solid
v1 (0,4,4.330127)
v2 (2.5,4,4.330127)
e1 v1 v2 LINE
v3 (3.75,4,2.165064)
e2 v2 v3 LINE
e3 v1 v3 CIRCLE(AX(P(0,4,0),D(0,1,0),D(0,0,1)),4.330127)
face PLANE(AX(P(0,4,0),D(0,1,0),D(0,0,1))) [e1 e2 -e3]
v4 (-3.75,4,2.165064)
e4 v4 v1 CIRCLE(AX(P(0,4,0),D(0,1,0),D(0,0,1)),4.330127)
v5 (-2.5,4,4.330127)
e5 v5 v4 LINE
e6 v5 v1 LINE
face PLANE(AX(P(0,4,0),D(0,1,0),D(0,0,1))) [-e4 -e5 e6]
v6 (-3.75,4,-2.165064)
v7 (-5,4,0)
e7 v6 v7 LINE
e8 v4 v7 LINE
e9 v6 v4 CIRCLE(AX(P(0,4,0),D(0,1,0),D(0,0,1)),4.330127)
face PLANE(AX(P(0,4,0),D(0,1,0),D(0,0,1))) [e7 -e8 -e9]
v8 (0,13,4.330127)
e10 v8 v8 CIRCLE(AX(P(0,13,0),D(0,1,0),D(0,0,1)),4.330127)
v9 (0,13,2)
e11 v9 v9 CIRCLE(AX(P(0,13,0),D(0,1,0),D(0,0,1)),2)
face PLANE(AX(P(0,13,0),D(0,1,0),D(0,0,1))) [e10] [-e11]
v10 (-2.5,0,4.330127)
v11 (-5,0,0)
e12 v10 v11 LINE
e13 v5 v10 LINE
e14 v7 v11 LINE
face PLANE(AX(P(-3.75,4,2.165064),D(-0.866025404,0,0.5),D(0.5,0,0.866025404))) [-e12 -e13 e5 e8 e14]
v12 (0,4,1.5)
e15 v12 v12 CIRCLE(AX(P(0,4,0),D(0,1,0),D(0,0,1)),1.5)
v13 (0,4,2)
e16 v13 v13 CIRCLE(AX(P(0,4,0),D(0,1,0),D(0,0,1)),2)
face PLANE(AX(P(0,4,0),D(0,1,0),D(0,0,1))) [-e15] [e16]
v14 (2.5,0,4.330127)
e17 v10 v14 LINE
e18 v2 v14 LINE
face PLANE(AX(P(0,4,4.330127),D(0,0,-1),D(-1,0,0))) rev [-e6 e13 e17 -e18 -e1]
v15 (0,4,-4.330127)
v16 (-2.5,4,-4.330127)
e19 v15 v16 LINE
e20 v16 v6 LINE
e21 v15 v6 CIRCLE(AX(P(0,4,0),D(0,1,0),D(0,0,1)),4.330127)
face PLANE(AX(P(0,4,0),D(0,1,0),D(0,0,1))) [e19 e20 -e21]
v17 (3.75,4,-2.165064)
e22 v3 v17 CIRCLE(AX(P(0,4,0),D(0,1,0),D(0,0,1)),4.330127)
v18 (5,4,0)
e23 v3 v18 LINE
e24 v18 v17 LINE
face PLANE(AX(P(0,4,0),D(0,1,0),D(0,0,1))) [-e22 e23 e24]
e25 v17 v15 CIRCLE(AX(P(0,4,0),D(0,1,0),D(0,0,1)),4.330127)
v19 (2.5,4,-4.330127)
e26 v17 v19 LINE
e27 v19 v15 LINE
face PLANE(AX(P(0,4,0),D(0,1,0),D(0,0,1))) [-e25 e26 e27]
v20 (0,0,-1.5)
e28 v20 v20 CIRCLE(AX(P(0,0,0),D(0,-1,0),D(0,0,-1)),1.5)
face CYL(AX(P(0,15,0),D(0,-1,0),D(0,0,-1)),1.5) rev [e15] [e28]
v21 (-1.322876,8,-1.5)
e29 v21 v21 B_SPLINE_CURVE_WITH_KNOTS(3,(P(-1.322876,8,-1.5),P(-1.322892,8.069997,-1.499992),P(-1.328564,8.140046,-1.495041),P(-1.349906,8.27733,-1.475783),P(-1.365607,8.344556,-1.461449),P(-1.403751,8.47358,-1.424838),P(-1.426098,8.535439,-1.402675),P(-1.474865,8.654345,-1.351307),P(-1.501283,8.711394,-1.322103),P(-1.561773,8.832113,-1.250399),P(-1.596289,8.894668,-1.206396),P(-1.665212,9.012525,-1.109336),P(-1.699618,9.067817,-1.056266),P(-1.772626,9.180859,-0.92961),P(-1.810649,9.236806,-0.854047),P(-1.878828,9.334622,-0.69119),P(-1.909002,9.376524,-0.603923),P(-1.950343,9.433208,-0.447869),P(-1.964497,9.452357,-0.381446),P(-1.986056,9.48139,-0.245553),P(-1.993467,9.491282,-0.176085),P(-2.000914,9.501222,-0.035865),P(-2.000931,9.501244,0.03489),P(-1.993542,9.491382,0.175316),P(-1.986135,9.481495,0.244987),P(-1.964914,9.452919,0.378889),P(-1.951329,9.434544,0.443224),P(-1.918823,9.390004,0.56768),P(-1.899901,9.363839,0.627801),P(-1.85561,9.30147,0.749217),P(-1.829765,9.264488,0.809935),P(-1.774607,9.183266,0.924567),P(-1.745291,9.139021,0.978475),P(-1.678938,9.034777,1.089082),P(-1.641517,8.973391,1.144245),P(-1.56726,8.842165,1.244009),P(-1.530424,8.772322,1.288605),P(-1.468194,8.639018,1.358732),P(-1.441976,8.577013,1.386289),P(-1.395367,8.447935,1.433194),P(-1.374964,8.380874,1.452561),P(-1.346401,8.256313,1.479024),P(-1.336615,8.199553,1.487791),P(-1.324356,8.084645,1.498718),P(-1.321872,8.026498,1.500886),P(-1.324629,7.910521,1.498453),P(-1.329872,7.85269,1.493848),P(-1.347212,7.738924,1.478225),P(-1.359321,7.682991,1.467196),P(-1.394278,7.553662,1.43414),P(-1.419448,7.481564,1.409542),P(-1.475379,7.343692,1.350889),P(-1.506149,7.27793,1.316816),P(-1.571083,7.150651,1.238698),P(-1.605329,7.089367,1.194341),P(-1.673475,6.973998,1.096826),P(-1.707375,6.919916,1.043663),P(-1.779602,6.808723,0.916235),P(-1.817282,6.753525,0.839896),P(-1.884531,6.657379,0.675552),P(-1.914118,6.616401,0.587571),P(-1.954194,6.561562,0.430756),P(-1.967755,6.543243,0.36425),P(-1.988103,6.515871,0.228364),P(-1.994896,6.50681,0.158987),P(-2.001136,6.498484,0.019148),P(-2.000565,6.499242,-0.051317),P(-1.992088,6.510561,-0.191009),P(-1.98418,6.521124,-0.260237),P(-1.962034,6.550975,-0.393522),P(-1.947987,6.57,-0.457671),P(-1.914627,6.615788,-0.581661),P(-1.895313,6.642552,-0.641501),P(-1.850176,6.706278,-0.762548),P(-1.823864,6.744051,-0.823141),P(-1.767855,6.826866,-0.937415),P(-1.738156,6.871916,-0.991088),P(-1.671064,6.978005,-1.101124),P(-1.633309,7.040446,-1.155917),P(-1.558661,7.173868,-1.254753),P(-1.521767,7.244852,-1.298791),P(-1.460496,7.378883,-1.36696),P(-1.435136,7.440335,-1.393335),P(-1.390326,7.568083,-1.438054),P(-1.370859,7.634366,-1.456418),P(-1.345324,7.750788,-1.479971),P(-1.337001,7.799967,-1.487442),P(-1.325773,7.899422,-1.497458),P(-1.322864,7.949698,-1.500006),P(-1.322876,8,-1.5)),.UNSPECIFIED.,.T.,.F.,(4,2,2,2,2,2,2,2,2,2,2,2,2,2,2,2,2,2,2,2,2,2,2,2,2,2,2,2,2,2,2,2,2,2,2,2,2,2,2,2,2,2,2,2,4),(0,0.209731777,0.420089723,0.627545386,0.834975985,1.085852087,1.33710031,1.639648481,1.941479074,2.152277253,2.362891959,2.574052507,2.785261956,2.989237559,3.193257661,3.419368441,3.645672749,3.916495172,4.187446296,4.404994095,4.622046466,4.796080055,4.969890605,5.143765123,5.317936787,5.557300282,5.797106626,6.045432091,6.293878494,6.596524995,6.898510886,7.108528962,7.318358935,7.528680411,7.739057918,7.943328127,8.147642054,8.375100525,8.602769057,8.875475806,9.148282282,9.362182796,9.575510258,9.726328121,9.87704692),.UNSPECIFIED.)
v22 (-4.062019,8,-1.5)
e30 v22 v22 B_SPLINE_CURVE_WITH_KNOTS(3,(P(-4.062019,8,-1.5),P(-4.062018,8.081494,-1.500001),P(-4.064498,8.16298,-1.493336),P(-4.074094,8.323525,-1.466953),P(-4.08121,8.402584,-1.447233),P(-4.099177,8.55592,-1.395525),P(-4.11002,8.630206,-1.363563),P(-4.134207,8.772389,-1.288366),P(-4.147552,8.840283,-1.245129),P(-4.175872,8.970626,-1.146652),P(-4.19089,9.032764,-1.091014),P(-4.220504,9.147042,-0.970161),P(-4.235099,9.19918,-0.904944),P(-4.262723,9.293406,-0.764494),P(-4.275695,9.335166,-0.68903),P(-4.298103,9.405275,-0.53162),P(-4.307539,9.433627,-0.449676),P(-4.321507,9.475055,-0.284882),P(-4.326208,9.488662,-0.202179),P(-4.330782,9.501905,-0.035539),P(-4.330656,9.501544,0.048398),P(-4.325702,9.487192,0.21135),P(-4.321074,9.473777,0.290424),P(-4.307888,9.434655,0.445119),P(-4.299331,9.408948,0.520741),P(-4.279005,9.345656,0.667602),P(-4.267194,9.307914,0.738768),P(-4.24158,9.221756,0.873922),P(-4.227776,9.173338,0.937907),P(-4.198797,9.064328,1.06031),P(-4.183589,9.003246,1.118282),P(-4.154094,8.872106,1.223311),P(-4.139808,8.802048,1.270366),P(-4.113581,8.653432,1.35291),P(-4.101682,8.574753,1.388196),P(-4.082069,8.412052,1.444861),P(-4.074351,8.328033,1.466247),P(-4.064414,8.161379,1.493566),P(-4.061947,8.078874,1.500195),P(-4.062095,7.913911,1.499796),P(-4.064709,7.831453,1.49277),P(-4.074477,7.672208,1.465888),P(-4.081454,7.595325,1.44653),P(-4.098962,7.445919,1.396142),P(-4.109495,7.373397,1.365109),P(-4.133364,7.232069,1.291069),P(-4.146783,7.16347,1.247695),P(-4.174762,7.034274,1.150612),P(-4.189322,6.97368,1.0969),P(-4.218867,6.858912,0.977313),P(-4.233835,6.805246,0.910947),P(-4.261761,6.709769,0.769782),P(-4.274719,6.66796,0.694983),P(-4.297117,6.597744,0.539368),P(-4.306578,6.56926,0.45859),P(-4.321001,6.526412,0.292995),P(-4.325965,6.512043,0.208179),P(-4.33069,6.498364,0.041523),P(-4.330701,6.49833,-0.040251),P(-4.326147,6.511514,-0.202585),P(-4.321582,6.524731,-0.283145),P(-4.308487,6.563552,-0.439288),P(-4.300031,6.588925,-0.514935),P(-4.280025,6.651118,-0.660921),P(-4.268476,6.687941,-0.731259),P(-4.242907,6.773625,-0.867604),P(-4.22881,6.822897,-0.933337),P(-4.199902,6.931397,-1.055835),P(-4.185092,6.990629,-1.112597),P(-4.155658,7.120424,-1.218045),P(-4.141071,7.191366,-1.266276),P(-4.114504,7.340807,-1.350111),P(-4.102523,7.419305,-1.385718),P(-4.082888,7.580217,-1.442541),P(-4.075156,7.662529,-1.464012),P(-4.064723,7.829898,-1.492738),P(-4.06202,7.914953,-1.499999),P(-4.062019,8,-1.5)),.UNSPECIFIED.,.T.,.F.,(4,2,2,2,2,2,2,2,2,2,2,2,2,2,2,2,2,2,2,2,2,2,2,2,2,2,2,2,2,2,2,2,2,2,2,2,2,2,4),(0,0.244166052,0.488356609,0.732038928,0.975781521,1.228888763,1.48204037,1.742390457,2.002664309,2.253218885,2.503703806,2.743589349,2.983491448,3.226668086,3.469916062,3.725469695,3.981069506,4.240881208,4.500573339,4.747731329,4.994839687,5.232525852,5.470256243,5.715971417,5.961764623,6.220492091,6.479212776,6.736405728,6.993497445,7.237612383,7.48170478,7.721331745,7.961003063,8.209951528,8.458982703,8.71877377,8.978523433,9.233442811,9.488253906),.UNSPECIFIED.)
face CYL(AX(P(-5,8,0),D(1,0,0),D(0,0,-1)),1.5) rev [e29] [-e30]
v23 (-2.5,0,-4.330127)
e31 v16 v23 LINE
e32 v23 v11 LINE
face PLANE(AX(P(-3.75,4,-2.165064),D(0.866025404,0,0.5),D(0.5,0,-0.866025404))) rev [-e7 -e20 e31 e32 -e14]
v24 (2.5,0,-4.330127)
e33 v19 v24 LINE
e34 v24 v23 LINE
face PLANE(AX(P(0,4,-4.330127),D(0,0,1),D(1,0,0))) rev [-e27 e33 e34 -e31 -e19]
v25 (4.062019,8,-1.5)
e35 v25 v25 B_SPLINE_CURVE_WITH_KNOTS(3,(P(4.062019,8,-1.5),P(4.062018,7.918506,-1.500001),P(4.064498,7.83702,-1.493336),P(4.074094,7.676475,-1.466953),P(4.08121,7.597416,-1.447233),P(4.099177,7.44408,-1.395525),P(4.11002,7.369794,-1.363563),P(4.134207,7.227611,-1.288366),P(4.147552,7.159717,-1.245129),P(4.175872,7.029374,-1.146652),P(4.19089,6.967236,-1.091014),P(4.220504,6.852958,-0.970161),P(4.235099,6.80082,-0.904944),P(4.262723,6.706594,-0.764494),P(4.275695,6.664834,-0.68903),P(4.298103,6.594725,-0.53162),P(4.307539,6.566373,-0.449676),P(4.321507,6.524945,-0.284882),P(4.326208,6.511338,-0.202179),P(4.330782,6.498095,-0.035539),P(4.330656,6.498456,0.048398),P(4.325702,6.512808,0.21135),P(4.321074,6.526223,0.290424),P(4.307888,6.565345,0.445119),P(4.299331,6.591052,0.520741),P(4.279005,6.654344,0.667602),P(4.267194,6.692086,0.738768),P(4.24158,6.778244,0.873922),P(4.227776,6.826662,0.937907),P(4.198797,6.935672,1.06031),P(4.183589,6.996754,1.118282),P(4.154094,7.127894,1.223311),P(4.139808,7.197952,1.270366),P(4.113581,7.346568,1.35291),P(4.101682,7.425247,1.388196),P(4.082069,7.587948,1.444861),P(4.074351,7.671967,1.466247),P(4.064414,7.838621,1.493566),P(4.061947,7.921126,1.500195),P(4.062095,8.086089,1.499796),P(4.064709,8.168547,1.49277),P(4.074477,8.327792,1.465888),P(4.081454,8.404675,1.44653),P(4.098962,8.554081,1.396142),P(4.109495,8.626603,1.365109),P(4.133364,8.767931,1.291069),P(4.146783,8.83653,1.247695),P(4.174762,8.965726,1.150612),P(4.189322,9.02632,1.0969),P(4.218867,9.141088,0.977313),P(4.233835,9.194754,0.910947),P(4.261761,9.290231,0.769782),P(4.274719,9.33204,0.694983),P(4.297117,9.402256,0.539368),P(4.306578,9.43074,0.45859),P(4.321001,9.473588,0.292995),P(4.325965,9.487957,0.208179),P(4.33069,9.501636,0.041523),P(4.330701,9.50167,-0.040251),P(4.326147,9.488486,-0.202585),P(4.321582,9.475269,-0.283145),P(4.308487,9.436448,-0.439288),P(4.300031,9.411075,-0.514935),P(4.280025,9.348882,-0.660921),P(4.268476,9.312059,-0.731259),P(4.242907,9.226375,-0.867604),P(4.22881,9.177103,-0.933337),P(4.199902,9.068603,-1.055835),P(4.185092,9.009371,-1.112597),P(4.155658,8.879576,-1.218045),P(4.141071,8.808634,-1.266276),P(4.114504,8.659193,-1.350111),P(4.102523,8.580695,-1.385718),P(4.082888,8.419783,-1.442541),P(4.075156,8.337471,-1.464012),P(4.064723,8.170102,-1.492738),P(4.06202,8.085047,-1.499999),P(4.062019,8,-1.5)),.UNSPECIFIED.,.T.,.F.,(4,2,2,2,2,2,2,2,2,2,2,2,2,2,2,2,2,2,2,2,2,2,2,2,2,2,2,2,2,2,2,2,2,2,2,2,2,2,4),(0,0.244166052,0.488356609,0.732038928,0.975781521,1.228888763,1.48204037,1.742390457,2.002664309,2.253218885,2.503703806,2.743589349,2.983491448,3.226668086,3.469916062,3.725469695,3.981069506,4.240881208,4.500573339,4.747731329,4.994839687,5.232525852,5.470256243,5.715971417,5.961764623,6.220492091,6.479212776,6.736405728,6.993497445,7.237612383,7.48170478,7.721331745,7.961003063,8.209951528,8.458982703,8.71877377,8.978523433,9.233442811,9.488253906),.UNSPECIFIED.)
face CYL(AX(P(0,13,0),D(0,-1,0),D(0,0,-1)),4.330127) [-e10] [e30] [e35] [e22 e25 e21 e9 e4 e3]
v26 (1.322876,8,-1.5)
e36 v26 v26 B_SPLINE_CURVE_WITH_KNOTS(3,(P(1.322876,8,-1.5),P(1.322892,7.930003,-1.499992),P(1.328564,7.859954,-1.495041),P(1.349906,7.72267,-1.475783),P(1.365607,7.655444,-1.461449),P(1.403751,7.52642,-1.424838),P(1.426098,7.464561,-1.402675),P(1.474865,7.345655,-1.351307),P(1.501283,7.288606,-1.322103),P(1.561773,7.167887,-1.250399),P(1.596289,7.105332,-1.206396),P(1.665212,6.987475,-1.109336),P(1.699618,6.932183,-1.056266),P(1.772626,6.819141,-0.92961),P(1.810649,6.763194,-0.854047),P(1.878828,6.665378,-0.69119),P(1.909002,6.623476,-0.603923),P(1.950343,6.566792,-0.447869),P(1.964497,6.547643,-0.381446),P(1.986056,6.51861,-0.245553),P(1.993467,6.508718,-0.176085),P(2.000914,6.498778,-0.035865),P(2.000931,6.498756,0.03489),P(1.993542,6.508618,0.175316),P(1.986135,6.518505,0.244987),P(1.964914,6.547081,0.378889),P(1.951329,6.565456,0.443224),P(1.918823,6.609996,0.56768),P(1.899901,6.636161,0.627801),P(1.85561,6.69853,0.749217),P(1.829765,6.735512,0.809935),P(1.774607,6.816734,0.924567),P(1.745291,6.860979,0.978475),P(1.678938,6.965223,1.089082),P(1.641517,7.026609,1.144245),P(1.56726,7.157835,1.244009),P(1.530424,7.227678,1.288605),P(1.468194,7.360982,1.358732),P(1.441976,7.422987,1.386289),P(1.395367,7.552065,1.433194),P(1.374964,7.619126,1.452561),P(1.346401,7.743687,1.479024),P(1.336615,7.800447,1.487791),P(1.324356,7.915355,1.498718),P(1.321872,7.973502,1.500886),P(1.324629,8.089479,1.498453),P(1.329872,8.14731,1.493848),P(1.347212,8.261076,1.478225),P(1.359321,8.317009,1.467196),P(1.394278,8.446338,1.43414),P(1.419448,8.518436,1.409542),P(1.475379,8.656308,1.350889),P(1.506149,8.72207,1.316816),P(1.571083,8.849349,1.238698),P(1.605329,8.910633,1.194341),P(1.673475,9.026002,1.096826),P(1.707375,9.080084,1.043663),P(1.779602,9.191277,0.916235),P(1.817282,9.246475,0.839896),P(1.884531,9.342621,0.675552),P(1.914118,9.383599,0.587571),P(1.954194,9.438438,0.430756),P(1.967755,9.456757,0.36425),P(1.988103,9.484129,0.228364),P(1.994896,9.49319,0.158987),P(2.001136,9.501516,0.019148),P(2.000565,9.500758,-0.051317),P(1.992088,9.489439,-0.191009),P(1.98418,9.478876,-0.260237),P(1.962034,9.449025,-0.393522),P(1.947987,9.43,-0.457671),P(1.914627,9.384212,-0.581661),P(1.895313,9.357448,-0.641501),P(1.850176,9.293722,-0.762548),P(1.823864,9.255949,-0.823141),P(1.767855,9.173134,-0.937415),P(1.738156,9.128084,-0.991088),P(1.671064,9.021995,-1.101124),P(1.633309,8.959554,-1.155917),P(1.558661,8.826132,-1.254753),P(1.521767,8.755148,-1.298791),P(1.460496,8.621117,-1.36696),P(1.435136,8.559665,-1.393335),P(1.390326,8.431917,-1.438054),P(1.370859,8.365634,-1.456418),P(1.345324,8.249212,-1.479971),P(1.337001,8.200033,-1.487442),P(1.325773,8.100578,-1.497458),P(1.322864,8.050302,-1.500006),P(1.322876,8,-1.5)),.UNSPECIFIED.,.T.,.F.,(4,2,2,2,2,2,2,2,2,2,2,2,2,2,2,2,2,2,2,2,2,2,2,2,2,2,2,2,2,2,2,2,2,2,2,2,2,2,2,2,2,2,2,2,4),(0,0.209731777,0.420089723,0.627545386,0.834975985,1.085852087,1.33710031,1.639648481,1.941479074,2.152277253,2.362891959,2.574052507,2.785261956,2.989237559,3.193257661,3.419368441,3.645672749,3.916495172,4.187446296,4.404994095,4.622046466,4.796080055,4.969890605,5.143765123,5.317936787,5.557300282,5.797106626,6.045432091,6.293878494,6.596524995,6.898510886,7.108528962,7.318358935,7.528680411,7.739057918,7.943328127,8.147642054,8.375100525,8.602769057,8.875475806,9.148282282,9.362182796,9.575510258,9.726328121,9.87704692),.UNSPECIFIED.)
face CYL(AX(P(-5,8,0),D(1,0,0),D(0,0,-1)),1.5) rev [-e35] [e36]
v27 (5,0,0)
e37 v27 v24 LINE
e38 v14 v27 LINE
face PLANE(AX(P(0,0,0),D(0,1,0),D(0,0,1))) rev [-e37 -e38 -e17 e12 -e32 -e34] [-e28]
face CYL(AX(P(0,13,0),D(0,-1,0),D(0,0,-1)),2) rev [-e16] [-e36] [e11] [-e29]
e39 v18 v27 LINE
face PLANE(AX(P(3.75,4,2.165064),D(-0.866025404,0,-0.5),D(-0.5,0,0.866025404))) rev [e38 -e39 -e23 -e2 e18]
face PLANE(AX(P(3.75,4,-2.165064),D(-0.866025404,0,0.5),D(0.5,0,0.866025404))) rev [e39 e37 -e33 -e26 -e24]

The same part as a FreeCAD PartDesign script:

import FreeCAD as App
import Part
import Sketcher
Q = App.Units.Quantity

doc = App.newDocument("Part")
body = doc.addObject("PartDesign::Body", "Body")

# Sketch on XZ plane
sketch1 = doc.addObject("Sketcher::SketchObject", "Sketch")
body.addObject(sketch1)
sketch1.AttachmentSupport = (doc.XZ_Plane, [""])
sketch1.MapMode = "FlatFace"
sketch1.addGeometry([
    Part.LineSegment(App.Vector(-2, -4, 0), App.Vector(-5, 0, 0)),  # 0
    Part.LineSegment(App.Vector(-5, 0, 0), App.Vector(-2, 4, 0)),  # 1
    Part.LineSegment(App.Vector(-2, 4, 0), App.Vector(2, 4, 0)),  # 2
    Part.LineSegment(App.Vector(2, 4, 0), App.Vector(5, 0, 0)),  # 3
    Part.LineSegment(App.Vector(5, 0, 0), App.Vector(2, -4, 0)),  # 4
    Part.LineSegment(App.Vector(2, -4, 0), App.Vector(-2, -4, 0)),  # 5
], False)
sketch1.addConstraint([
    Sketcher.Constraint("Coincident", 0, 2, 1, 1),
    Sketcher.Constraint("Coincident", 1, 2, 2, 1),
    Sketcher.Constraint("Coincident", 2, 2, 3, 1),
    Sketcher.Constraint("Coincident", 3, 2, 4, 1),
    Sketcher.Constraint("Coincident", 4, 2, 5, 1),
    Sketcher.Constraint("Coincident", 5, 2, 0, 1),
    Sketcher.Constraint("Horizontal", 2),
    Sketcher.Constraint("Horizontal", 5),
    Sketcher.Constraint("Symmetric", 0, 2, 3, 2, -1, 1),
    Sketcher.Constraint("Symmetric", 1, 2, 4, 2, -1, 1),
    Sketcher.Constraint("PointOnObject", 0, 2, -1),
    Sketcher.Constraint("Parallel", 0, 3),
    Sketcher.Constraint("Vertical", 2, 2, 4, 2),
    Sketcher.Constraint("DistanceX", 2, 1, 2, 2, Q("5 mm")),
    Sketcher.Constraint("Angle", 0, Q("120 deg")),
    Sketcher.Constraint("Distance", 0, Q("5 mm")),
])
pad1 = doc.addObject("PartDesign::Pad", "Pad")
body.addObject(pad1)
pad1.Profile = sketch1
pad1.Length = 4
pad1.Reversed = True

# Sketch on XZ plane
sketch2 = doc.addObject("Sketcher::SketchObject", "Sketch001")
body.addObject(sketch2)
sketch2.AttachmentSupport = (doc.XZ_Plane, [""])
sketch2.MapMode = "FlatFace"
sketch2.AttachmentOffset = App.Placement(App.Vector(0, 0, -4), App.Rotation())
sketch2.addGeometry([
    Part.Circle(App.Vector(0, 0, 0), App.Vector(0, 0, 1), 4.3),
    Part.Circle(App.Vector(0, 0, 0), App.Vector(0, 0, 1), 2),
], False)
sketch2.addConstraint([
    Sketcher.Constraint("Coincident", 0, 3, -1, 1),
    Sketcher.Constraint("Coincident", 1, 3, -1, 1),
    Sketcher.Constraint("Diameter", 1, Q("4 mm")),
    Sketcher.Constraint("Diameter", 0, Q("8.660254 mm")),
])
pad2 = doc.addObject("PartDesign::Pad", "Pad001")
body.addObject(pad2)
pad2.Profile = sketch2
pad2.Length = 9
pad2.Reversed = True

# Sketch on XZ plane
sketch3 = doc.addObject("Sketcher::SketchObject", "Sketch002")
body.addObject(sketch3)
sketch3.AttachmentSupport = (doc.XZ_Plane, [""])
sketch3.MapMode = "FlatFace"
sketch3.addGeometry(Part.Circle(App.Vector(0, 0, 0), App.Vector(0, 0, 1), 1.5), False)
sketch3.addConstraint([
    Sketcher.Constraint("Coincident", 0, 3, -1, 1),
    Sketcher.Constraint("Diameter", 0, Q("3 mm")),
])
pocket1 = doc.addObject("PartDesign::Pocket", "Pocket")
body.addObject(pocket1)
pocket1.Profile = sketch3
pocket1.Length = 15

# Sketch on YZ plane
sketch4 = doc.addObject("Sketcher::SketchObject", "Sketch003")
body.addObject(sketch4)
sketch4.AttachmentSupport = (doc.YZ_Plane, [""])
sketch4.MapMode = "FlatFace"
sketch4.addGeometry(Part.Circle(App.Vector(8, 0, 0), App.Vector(0, 0, 1), 1.5), False)
sketch4.addConstraint([
    Sketcher.Constraint("PointOnObject", 0, 3, -1),
    Sketcher.Constraint("Diameter", 0, Q("3 mm")),
    Sketcher.Constraint("DistanceX", -1, 1, 0, 3, Q("8 mm")),
])
pocket2 = doc.addObject("PartDesign::Pocket", "Pocket001")
body.addObject(pocket2)
pocket2.Profile = sketch4
pocket2.Type = "ThroughAll"
pocket2.Midplane = True

doc.recompute()
